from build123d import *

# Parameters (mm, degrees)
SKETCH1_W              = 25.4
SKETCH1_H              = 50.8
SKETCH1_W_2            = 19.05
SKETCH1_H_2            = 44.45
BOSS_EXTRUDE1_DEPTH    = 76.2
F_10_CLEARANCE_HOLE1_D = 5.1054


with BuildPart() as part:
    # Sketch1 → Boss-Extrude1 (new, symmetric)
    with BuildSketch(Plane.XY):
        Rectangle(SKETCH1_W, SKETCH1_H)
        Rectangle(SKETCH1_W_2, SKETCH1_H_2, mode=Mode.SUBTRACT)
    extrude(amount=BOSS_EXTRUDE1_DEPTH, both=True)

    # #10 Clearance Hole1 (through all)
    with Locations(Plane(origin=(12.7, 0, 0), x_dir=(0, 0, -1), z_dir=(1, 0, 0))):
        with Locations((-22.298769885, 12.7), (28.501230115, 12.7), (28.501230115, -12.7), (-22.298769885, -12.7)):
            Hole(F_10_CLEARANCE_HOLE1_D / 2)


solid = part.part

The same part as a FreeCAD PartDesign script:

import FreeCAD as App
import Part
import Sketcher
Q = App.Units.Quantity

doc = App.newDocument("Part")
params = doc.addObject("Spreadsheet::Sheet", "Params")
for row, (alias, value) in enumerate([
    ("sketch1_width", "1 in"),
    ("sketch1_height", "2 in"),
    ("sketch1_width2", "0.75 in"),
    ("sketch1_height2", "1.75 in"),
    ("pad1_length", "6 in"),
    ("sketch2_diameter", "0.201 in"),
    ("hole_diameter", "0.201 in"),
], start=1):
    params.set(f"A{row}", alias)
    params.set(f"B{row}", "=" + value)
    params.setAlias(f"B{row}", alias)

body = doc.addObject("PartDesign::Body", "Body")

# Sketch on XY plane
sketch1 = doc.addObject("Sketcher::SketchObject", "Sketch")
body.addObject(sketch1)
sketch1.AttachmentSupport = (doc.XY_Plane, [""])
sketch1.MapMode = "FlatFace"
sketch1.addGeometry(Part.LineSegment(App.Vector(-12.7, 25.4, 0), App.Vector(-12.7, -25.4, 0)), False)
sketch1.addGeometry(Part.LineSegment(App.Vector(-12.7, -25.4, 0), App.Vector(12.7, -25.4, 0)), False)
sketch1.addGeometry(Part.LineSegment(App.Vector(12.7, -25.4, 0), App.Vector(12.7, 25.4, 0)), False)
sketch1.addGeometry(Part.LineSegment(App.Vector(12.7, 25.4, 0), App.Vector(-12.7, 25.4, 0)), False)
sketch1.addGeometry(Part.LineSegment(App.Vector(9.525, -22.225, 0), App.Vector(-9.525, -22.225, 0)), False)
sketch1.addGeometry(Part.LineSegment(App.Vector(-9.525, -22.225, 0), App.Vector(-9.525, 22.225, 0)), False)
sketch1.addGeometry(Part.LineSegment(App.Vector(-9.525, 22.225, 0), App.Vector(9.525, 22.225, 0)), False)
sketch1.addGeometry(Part.LineSegment(App.Vector(9.525, 22.225, 0), App.Vector(9.525, -22.225, 0)), False)
sketch1.addConstraint(Sketcher.Constraint("Coincident", 0, 2, 1, 1))
sketch1.addConstraint(Sketcher.Constraint("Coincident", 1, 2, 2, 1))
sketch1.addConstraint(Sketcher.Constraint("Coincident", 2, 2, 3, 1))
sketch1.addConstraint(Sketcher.Constraint("Coincident", 3, 2, 0, 1))
sketch1.addConstraint(Sketcher.Constraint("Coincident", 4, 2, 5, 1))
sketch1.addConstraint(Sketcher.Constraint("Coincident", 5, 2, 6, 1))
sketch1.addConstraint(Sketcher.Constraint("Coincident", 6, 2, 7, 1))
sketch1.addConstraint(Sketcher.Constraint("Coincident", 7, 2, 4, 1))
sketch1.addConstraint(Sketcher.Constraint("Vertical", 0))
sketch1.addConstraint(Sketcher.Constraint("Horizontal", 1))
sketch1.addConstraint(Sketcher.Constraint("Vertical", 2))
sketch1.addConstraint(Sketcher.Constraint("Horizontal", 3))
sketch1.addConstraint(Sketcher.Constraint("Horizontal", 4))
sketch1.addConstraint(Sketcher.Constraint("Vertical", 5))
sketch1.addConstraint(Sketcher.Constraint("Horizontal", 6))
sketch1.addConstraint(Sketcher.Constraint("Vertical", 7))
sketch1.addConstraint(Sketcher.Constraint("Symmetric", 0, 2, 2, 2, -1, 1))
sketch1.addConstraint(Sketcher.Constraint("Symmetric", 4, 2, 6, 2, -1, 1))
sketch1.addConstraint(Sketcher.Constraint("DistanceX", 1, 1, 1, 2, Q("1 in")))
sketch1.addConstraint(Sketcher.Constraint("DistanceY", 0, 2, 0, 1, Q("2 in")))
sketch1.addConstraint(Sketcher.Constraint("DistanceX", 4, 2, 4, 1, Q("0.75 in")))
sketch1.addConstraint(Sketcher.Constraint("DistanceY", 5, 1, 5, 2, Q("1.75 in")))
sketch1.setExpression("Constraints[18]", "Params.sketch1_width")
sketch1.setExpression("Constraints[19]", "Params.sketch1_height")
sketch1.setExpression("Constraints[20]", "Params.sketch1_width2")
sketch1.setExpression("Constraints[21]", "Params.sketch1_height2")
pad1 = doc.addObject("PartDesign::Pad", "Pad")
body.addObject(pad1)
pad1.Profile = sketch1
pad1.setExpression("Length", "Params.pad1_length")
pad1.Midplane = True

# Sketch on YZ plane
sketch2 = doc.addObject("Sketcher::SketchObject", "Sketch001")
body.addObject(sketch2)
sketch2.AttachmentSupport = (doc.YZ_Plane, [""])
sketch2.MapMode = "FlatFace"
sketch2.AttachmentOffset = App.Placement(App.Vector(0, 0, 0.5 * 25.4), App.Rotation())
sketch2.addGeometry(Part.Circle(App.Vector(12.7, 22.29877, 0), App.Vector(0, 0, 1), 2.5527), False)
sketch2.addGeometry(Part.Circle(App.Vector(12.7, -28.50123, 0), App.Vector(0, 0, 1), 2.5527), False)
sketch2.addGeometry(Part.Circle(App.Vector(-12.7, -28.50123, 0), App.Vector(0, 0, 1), 2.5527), False)
sketch2.addGeometry(Part.Circle(App.Vector(-12.7, 22.29877, 0), App.Vector(0, 0, 1), 2.5527), False)
sketch2.addConstraint(Sketcher.Constraint("Equal", 0, 1))
sketch2.addConstraint(Sketcher.Constraint("Equal", 1, 2))
sketch2.addConstraint(Sketcher.Constraint("Equal", 2, 3))
sketch2.addConstraint(Sketcher.Constraint("Symmetric", 1, 3, 2, 3, -2))
sketch2.addConstraint(Sketcher.Constraint("Symmetric", 0, 3, 3, 3, -2))
sketch2.addConstraint(Sketcher.Constraint("Vertical", 0, 3, 1, 3))
sketch2.addConstraint(Sketcher.Constraint("Diameter", 0, Q("0.201 in")))
sketch2.addConstraint(Sketcher.Constraint("DistanceY", 1, 3, 0, 3, Q("2 in")))
sketch2.addConstraint(Sketcher.Constraint("DistanceX", 2, 3, 1, 3, Q("1 in")))
sketch2.addConstraint(Sketcher.Constraint("DistanceY", -1, 1, 0, 3, 22.29877))
sketch2.setExpression("Constraints[6]", "Params.sketch2_diameter")
doc.recompute()
hole = doc.addObject("PartDesign::Hole", "Hole")
body.addObject(hole)
hole.Profile = sketch2
hole.ThreadType = "None"
hole.setExpression("Diameter", "Params.hole_diameter")
hole.DepthType = "ThroughAll"

doc.recompute()
